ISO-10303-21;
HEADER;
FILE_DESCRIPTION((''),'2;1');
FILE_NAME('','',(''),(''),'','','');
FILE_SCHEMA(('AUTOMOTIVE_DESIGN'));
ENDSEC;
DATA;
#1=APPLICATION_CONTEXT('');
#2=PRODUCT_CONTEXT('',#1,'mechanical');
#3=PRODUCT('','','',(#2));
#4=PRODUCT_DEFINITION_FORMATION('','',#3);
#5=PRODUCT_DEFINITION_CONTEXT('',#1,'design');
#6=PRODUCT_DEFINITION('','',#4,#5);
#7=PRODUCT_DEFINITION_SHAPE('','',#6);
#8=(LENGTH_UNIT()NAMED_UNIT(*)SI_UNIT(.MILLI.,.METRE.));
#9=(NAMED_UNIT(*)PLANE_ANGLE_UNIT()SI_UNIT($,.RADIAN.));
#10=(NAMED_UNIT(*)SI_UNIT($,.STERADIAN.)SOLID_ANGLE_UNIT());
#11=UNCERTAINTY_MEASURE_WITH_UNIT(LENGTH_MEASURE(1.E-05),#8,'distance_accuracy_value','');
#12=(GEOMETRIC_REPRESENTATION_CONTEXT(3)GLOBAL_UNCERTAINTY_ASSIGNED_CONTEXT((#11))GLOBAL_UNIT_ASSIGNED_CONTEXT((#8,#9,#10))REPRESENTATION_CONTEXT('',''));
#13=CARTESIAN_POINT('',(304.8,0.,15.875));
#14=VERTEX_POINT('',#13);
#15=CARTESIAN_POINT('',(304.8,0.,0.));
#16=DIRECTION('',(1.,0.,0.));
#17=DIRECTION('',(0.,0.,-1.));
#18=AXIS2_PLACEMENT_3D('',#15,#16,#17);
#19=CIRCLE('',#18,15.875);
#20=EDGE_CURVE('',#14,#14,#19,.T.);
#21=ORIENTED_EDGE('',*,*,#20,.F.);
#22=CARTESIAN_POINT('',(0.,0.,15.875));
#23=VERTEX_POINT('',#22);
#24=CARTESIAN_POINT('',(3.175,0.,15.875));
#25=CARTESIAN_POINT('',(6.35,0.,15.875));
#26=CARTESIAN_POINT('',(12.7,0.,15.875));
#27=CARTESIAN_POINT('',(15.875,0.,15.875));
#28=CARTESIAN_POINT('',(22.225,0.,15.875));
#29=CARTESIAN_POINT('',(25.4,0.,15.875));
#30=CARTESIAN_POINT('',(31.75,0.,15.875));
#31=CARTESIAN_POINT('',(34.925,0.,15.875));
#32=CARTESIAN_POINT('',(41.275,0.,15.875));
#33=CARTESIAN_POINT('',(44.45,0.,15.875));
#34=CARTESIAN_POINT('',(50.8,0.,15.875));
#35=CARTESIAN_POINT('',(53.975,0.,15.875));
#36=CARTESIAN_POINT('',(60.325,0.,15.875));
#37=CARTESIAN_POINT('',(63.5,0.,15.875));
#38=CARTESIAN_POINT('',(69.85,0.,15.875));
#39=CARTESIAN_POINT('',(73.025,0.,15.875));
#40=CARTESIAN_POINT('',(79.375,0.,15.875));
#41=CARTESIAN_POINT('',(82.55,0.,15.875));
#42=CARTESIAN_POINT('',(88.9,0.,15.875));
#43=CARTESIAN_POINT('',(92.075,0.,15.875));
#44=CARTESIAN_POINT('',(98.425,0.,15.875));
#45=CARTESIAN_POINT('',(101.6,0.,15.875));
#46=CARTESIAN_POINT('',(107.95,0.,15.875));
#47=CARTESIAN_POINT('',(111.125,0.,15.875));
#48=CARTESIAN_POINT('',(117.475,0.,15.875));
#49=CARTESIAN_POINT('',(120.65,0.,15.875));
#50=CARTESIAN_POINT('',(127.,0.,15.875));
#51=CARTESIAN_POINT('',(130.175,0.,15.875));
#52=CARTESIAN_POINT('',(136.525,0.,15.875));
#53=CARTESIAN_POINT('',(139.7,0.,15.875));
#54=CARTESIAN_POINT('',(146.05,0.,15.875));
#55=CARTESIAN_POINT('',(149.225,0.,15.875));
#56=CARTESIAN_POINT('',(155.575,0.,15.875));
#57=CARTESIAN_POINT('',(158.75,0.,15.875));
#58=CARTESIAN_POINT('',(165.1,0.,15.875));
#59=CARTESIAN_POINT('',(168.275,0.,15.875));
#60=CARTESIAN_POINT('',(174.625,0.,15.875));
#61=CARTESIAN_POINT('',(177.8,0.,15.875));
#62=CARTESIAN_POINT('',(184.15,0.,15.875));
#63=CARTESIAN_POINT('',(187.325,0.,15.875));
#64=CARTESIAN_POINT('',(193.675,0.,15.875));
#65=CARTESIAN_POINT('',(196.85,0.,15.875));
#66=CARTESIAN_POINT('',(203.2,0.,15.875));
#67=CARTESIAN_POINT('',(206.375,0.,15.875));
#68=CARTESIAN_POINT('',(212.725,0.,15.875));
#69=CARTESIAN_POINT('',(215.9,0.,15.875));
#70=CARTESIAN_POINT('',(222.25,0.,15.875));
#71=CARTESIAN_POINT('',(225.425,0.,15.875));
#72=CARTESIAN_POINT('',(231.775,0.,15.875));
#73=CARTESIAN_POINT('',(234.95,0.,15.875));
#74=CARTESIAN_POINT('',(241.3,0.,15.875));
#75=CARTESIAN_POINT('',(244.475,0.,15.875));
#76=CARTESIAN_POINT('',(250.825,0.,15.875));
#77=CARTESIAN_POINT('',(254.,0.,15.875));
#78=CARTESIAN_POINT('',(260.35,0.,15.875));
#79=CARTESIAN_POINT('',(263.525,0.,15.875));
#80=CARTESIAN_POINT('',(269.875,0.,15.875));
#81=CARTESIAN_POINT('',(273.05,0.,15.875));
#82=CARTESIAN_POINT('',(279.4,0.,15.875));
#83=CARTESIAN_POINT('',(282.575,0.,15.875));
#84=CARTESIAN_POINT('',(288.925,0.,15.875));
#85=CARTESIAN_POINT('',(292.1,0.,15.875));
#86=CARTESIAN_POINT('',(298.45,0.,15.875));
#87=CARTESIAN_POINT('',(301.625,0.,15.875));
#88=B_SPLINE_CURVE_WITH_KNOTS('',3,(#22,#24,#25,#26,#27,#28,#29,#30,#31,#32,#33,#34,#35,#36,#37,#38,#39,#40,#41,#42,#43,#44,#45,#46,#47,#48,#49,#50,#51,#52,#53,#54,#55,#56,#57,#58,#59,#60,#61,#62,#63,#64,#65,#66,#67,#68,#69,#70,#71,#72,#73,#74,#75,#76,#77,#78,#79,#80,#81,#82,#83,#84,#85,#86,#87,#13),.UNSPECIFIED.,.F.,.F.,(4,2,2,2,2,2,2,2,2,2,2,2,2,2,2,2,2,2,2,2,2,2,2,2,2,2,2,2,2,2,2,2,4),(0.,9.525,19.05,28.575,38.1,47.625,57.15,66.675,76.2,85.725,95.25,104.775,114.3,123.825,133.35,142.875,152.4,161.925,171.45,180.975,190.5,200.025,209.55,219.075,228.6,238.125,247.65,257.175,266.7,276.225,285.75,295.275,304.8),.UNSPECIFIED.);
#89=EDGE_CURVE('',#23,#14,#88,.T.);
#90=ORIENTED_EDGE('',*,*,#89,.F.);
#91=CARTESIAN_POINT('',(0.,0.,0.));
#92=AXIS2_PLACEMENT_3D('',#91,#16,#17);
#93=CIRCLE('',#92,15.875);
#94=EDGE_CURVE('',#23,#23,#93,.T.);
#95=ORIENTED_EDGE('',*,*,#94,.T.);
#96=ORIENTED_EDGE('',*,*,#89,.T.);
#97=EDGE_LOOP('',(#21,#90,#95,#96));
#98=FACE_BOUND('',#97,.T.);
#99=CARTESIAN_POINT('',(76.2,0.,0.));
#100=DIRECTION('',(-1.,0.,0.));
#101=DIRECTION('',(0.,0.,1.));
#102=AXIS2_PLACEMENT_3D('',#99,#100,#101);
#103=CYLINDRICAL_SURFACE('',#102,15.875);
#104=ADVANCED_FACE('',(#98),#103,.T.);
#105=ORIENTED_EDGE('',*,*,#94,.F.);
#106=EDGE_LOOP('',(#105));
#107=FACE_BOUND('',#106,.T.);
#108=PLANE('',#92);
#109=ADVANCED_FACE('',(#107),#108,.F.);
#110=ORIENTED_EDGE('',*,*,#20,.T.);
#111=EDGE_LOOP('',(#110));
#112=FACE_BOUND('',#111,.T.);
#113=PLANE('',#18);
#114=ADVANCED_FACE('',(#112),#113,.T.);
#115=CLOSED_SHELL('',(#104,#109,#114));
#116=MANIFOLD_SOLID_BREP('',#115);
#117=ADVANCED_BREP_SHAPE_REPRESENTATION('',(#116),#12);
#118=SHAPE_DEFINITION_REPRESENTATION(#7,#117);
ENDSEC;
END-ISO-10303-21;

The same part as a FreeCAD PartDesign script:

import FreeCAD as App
import Part
import Sketcher
Q = App.Units.Quantity

doc = App.newDocument("Part")
body = doc.addObject("PartDesign::Body", "Body")

sketch1 = body.newObject("Sketcher::SketchObject", "Sketch")
sketch1.AttachmentSupport = (doc.getObject("YZ_Plane"), [""])
sketch1.MapMode = "FlatFace"
sketch1.addGeometry(Part.Circle(App.Vector(0, 0, 0), App.Vector(0, 0, 1), 16), False)
sketch1.addConstraint([
    Sketcher.Constraint("Coincident", 0, 3, -1, 1),
    Sketcher.Constraint("Diameter", 0, Q("1.25 in")),
])
pad1 = body.newObject("PartDesign::Pad", "Pad")
pad1.Profile = sketch1
pad1.Length = Q("3 in")

sketch2 = body.newObject("Sketcher::SketchObject", "Sketch001")
sketch2.AttachmentSupport = (doc.getObject("YZ_Plane"), [""])
sketch2.MapMode = "FlatFace"
sketch2.AttachmentOffset = App.Placement(App.Vector(0, 0, 3 * 25.4), App.Rotation())
sketch2.addGeometry(Part.Circle(App.Vector(0, 0, 0), App.Vector(0, 0, 1), 16), False)
sketch2.addConstraint([
    Sketcher.Constraint("Coincident", 0, 3, -1, 1),
    Sketcher.Constraint("Diameter", 0, Q("1.25 in")),
])
pad2 = body.newObject("PartDesign::Pad", "Pad001")
pad2.Profile = sketch2
pad2.Length = Q("9 in")

doc.recompute()
